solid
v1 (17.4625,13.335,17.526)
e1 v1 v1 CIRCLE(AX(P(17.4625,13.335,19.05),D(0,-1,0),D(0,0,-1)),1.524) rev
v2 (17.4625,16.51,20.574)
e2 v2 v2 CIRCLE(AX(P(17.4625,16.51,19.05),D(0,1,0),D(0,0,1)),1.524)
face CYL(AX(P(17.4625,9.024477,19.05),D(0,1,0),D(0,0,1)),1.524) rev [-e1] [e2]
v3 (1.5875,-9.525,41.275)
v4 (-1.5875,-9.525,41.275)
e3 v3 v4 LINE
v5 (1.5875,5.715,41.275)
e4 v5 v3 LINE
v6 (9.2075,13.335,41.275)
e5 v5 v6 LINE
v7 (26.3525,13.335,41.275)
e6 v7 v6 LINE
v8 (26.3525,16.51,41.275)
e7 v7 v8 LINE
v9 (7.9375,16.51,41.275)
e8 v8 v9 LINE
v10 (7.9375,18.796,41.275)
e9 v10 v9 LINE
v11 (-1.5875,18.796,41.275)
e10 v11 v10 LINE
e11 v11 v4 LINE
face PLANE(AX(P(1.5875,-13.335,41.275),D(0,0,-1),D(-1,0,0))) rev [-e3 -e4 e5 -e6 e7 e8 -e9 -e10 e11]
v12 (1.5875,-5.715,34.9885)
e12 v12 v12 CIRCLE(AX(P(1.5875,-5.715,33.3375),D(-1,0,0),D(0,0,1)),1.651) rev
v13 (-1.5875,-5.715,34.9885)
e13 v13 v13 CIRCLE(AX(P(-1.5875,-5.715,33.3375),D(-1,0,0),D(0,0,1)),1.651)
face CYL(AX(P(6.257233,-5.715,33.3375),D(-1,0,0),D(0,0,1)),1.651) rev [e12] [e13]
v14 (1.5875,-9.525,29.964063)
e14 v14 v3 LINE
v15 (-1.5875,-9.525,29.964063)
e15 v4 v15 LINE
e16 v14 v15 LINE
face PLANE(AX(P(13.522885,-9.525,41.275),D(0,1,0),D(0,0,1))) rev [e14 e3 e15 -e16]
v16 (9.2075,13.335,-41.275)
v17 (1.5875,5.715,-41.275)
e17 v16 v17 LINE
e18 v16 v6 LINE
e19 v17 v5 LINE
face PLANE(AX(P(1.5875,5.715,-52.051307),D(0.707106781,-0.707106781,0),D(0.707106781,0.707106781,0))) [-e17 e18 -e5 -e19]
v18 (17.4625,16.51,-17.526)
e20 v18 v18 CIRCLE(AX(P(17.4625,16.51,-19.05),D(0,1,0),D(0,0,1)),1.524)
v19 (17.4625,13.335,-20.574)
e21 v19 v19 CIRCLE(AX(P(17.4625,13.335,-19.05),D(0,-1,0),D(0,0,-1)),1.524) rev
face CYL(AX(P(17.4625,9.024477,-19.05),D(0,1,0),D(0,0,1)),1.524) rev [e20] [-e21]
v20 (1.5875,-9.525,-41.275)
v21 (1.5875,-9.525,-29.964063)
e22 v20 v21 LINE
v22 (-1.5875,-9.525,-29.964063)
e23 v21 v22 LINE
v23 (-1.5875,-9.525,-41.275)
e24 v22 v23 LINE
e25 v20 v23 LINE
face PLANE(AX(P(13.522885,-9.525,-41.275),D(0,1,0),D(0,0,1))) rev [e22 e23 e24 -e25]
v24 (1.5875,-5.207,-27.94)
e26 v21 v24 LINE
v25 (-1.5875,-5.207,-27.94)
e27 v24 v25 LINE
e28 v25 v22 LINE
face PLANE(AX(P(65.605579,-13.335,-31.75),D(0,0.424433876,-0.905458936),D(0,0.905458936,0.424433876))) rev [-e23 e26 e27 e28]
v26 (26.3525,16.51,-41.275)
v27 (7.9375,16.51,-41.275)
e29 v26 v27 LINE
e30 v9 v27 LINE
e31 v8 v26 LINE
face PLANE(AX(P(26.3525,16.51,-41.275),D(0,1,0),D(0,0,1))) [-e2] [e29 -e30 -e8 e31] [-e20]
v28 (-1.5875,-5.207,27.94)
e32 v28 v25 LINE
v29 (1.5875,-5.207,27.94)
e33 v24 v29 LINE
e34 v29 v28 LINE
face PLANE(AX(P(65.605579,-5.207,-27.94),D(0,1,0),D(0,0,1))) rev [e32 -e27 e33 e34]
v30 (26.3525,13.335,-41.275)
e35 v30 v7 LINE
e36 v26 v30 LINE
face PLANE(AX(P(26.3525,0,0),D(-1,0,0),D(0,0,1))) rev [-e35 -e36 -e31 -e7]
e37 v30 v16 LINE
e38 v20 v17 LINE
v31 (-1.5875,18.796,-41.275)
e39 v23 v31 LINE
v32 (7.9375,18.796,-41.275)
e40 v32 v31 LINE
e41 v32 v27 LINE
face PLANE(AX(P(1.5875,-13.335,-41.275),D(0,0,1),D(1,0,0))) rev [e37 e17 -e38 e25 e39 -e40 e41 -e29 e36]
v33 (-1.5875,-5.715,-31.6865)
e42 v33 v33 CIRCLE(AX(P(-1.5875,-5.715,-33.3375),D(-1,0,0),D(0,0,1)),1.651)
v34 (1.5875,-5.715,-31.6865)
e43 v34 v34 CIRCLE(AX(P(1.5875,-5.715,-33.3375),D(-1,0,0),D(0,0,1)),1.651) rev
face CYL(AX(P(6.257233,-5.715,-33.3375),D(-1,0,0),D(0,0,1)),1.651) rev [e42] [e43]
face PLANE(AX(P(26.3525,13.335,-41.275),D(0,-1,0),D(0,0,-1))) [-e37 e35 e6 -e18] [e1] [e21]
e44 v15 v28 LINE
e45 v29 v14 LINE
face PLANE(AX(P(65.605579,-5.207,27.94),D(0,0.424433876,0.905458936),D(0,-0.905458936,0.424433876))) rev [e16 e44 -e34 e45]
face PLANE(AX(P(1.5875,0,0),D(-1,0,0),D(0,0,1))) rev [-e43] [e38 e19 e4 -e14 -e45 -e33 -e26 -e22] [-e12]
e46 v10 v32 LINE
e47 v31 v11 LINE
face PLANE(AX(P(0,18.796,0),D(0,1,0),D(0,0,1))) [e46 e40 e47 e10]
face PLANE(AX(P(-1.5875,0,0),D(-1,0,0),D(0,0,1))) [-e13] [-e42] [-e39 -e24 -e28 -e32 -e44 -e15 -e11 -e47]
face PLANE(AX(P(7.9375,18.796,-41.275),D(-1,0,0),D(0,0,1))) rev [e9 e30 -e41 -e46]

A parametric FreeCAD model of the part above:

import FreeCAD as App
import Part
import Sketcher
from FreeCAD import Vector
Q = App.Units.Quantity

doc = App.newDocument("Part")
body = doc.addObject("PartDesign::Body", "Body")

# Sketch on YZ plane
sketch1 = body.newObject("Sketcher::SketchObject", "Sketch")
sketch1.AttachmentSupport = (doc.getObject("YZ_Plane"), [""])
sketch1.MapMode = "FlatFace"
sketch1.addGeometry([
    Part.LineSegment(Vector(13.335, 41.275, 0), Vector(-13.335, 41.275, 0)),
    Part.LineSegment(Vector(-13.335, 41.275, 0), Vector(-13.335, -41.275, 0)),
    Part.LineSegment(Vector(-13.335, -41.275, 0), Vector(13.335, -41.275, 0)),
    Part.LineSegment(Vector(13.335, -41.275, 0), Vector(13.335, 41.275, 0)),
], False)
sketch1.addConstraint([
    Sketcher.Constraint("Coincident", 0, 2, 1, 1),
    Sketcher.Constraint("Coincident", 1, 2, 2, 1),
    Sketcher.Constraint("Coincident", 2, 2, 3, 1),
    Sketcher.Constraint("Coincident", 3, 2, 0, 1),
    Sketcher.Constraint("Horizontal", 0),
    Sketcher.Constraint("Vertical", 1),
    Sketcher.Constraint("Horizontal", 2),
    Sketcher.Constraint("Vertical", 3),
    Sketcher.Constraint("Symmetric", 0, 2, 2, 2, -1, 1),
    Sketcher.Constraint("DistanceX", 0, 2, 0, 1, Q("1.05 in")),
    Sketcher.Constraint("DistanceY", 1, 2, 1, 1, Q("3.25 in")),
])
pad1 = body.newObject("PartDesign::Pad", "Pad")
pad1.Profile = sketch1
pad1.Length = Q("0.125 in")
pad1.Midplane = True

# Sketch on YZ plane
sketch2 = body.newObject("Sketcher::SketchObject", "Sketch001")
sketch2.AttachmentSupport = (doc.getObject("YZ_Plane"), [""])
sketch2.MapMode = "FlatFace"
sketch2.AttachmentOffset = App.Placement(Vector(0, 0, -0.0625 * 25.4), App.Rotation())
sketch2.addGeometry([
    Part.Circle(Vector(-5.715, 33.3375, 0), Vector(0, 0, 1), 1.651),
    Part.Circle(Vector(-5.715, -33.3375, 0), Vector(0, 0, 1), 1.651),
    Part.Circle(Vector(-10.16, -26.4795, 0), Vector(0, 0, 1), 1.5875),
    Part.Circle(Vector(-10.16, 26.4795, 0), Vector(0, 0, 1), 1.5875),
], False)
sketch2.addConstraint([
    Sketcher.Constraint("Equal", 0, 1),
    Sketcher.Constraint("Equal", 2, 3),
    Sketcher.Constraint("Symmetric", 0, 3, 1, 3, -1),
    Sketcher.Constraint("Symmetric", 2, 3, 3, 3, -1),
    Sketcher.Constraint("Diameter", 0, Q("0.13 in")),
    Sketcher.Constraint("Diameter", 2, Q("0.125 in")),
    Sketcher.Constraint("DistanceX", 2, 3, -1, 1, Q("0.4 in")),
    Sketcher.Constraint("DistanceY", 1, 3, 2, 3, Q("0.27 in")),
    Sketcher.Constraint("DistanceX", 0, 3, -1, 1, Q("0.225 in")),
    Sketcher.Constraint("DistanceY", -1, 1, 0, 3, Q("1.3125 in")),
])
pocket1 = body.newObject("PartDesign::Pocket", "Pocket")
pocket1.Profile = sketch2
pocket1.Length = Q("0.125 in")
pocket1.Reversed = True

# Sketch on YZ plane
sketch3 = body.newObject("Sketcher::SketchObject", "Sketch002")
sketch3.AttachmentSupport = (doc.getObject("YZ_Plane"), [""])
sketch3.MapMode = "FlatFace"
sketch3.AttachmentOffset = App.Placement(Vector(0, 0, -0.0625 * 25.4), App.Rotation())
sketch3.addGeometry([
    Part.LineSegment(Vector(16.51, -41.275, 0), Vector(13.335, -41.275, 0)),
    Part.LineSegment(Vector(13.335, -41.275, 0), Vector(13.335, 41.275, 0)),
    Part.LineSegment(Vector(13.335, 41.275, 0), Vector(16.51, 41.275, 0)),
    Part.LineSegment(Vector(16.51, 41.275, 0), Vector(16.51, -41.275, 0)),
], False)
sketch3.addConstraint([
    Sketcher.Constraint("Coincident", 0, 2, 1, 1),
    Sketcher.Constraint("Coincident", 1, 2, 2, 1),
    Sketcher.Constraint("Coincident", 2, 2, 3, 1),
    Sketcher.Constraint("Coincident", 3, 2, 0, 1),
    Sketcher.Constraint("Horizontal", 0),
    Sketcher.Constraint("Vertical", 1),
    Sketcher.Constraint("Horizontal", 2),
    Sketcher.Constraint("Vertical", 3),
    Sketcher.Constraint("DistanceY", 1, 1, 1, 2, Q("3.25 in")),
    Sketcher.Constraint("DistanceX", 0, 2, 0, 1, Q("0.125 in")),
    Sketcher.Constraint("DistanceX", -1, 1, 2, 2, Q("0.65 in")),
    Sketcher.Constraint("DistanceY", 0, 2, -1, 1, Q("1.625 in")),
])
pad2 = body.newObject("PartDesign::Pad", "Pad001")
pad2.Profile = sketch3
pad2.Length = Q("1.1 in")

# Sketch on XZ plane
sketch4 = body.newObject("Sketcher::SketchObject", "Sketch003")
sketch4.AttachmentSupport = (doc.getObject("XZ_Plane"), [""])
sketch4.MapMode = "FlatFace"
sketch4.AttachmentOffset = App.Placement(Vector(0, 0, -0.65 * 25.4), App.Rotation())
sketch4.addGeometry([
    Part.Circle(Vector(17.4625, -19.05, 0), Vector(0, 0, 1), 1.524),
    Part.Circle(Vector(17.4625, 19.05, 0), Vector(0, 0, 1), 1.524),
], False)
sketch4.addConstraint([
    Sketcher.Constraint("Equal", 0, 1),
    Sketcher.Constraint("Symmetric", 0, 3, 1, 3, -1),
    Sketcher.Constraint("Diameter", 0, Q("0.12 in")),
    Sketcher.Constraint("DistanceY", 0, 3, 1, 3, Q("1.5 in")),
    Sketcher.Constraint("DistanceX", -1, 1, 0, 3, Q("0.6875 in")),
])
pocket2 = body.newObject("PartDesign::Pocket", "Pocket001")
pocket2.Profile = sketch4
pocket2.Length = Q("0.125 in")
pocket2.Reversed = True

# Sketch on YZ plane
sketch5 = body.newObject("Sketcher::SketchObject", "Sketch004")
sketch5.AttachmentSupport = (doc.getObject("YZ_Plane"), [""])
sketch5.MapMode = "FlatFace"
sketch5.AttachmentOffset = App.Placement(Vector(0, 0, -0.0625 * 25.4), App.Rotation())
sketch5.addGeometry([
    Part.LineSegment(Vector(-13.335, -31.75, 0), Vector(-13.335, 31.75, 0)),
    Part.LineSegment(Vector(-13.335, 31.75, 0), Vector(-5.207, 27.94, 0)),
    Part.LineSegment(Vector(-5.207, 27.94, 0), Vector(-5.207, -27.94, 0)),
    Part.LineSegment(Vector(-5.207, -27.94, 0), Vector(-13.335, -31.75, 0)),
], False)
sketch5.addConstraint([
    Sketcher.Constraint("Coincident", 0, 2, 1, 1),
    Sketcher.Constraint("Coincident", 1, 2, 2, 1),
    Sketcher.Constraint("Coincident", 2, 2, 3, 1),
    Sketcher.Constraint("Coincident", 3, 2, 0, 1),
    Sketcher.Constraint("Vertical", 0),
    Sketcher.Constraint("Vertical", 2),
    Sketcher.Constraint("Equal", 1, 3),
    Sketcher.Constraint("DistanceY", 0, 1, 0, 2, Q("2.5 in")),
    Sketcher.Constraint("DistanceY", 2, 2, 2, 1, Q("2.2 in")),
    Sketcher.Constraint("DistanceY", -1, 1, 1, 2, Q("1.1 in")),
    Sketcher.Constraint("DistanceX", 0, 2, 1, 2, Q("0.32 in")),
    Sketcher.Constraint("DistanceX", 0, 2, -1, 1, Q("0.525 in")),
])
pocket3 = body.newObject("PartDesign::Pocket", "Pocket002")
pocket3.Profile = sketch5
pocket3.Length = Q("0.125 in")
pocket3.Reversed = True

# Sketch on XY plane
sketch6 = body.newObject("Sketcher::SketchObject", "Sketch005")
sketch6.AttachmentSupport = (doc.getObject("XY_Plane"), [""])
sketch6.MapMode = "FlatFace"
sketch6.AttachmentOffset = App.Placement(Vector(0, 0, 1.625 * 25.4), App.Rotation())
sketch6.addGeometry([
    Part.LineSegment(Vector(9.2075, 13.335, 0), Vector(1.5875, 13.335, 0)),
    Part.LineSegment(Vector(1.5875, 13.335, 0), Vector(1.5875, 5.715, 0)),
    Part.LineSegment(Vector(1.5875, 5.715, 0), Vector(9.2075, 13.335, 0)),
], False)
sketch6.addConstraint([
    Sketcher.Constraint("Coincident", 0, 2, 1, 1),
    Sketcher.Constraint("Coincident", 1, 2, 2, 1),
    Sketcher.Constraint("Coincident", 2, 2, 0, 1),
    Sketcher.Constraint("Horizontal", 0),
    Sketcher.Constraint("Vertical", 1),
    Sketcher.Constraint("Equal", 0, 1),
    Sketcher.Constraint("DistanceX", 0, 2, 0, 1, Q("0.3 in")),
    Sketcher.Constraint("DistanceX", -1, 1, 0, 2, Q("0.0625 in")),
    Sketcher.Constraint("DistanceY", -1, 1, 0, 2, Q("0.525 in")),
])
pad3 = body.newObject("PartDesign::Pad", "Pad002")
pad3.Profile = sketch6
pad3.Length = Q("3.25 in")
pad3.Reversed = True

# Sketch on YZ plane
sketch7 = body.newObject("Sketcher::SketchObject", "Sketch006")
sketch7.AttachmentSupport = (doc.getObject("YZ_Plane"), [""])
sketch7.MapMode = "FlatFace"
sketch7.AttachmentOffset = App.Placement(Vector(0, 0, -0.0625 * 25.4), App.Rotation())
sketch7.addGeometry([
    Part.LineSegment(Vector(-9.525, -41.275, 0), Vector(-13.335, -41.275, 0)),  # 0
    Part.LineSegment(Vector(-13.335, -41.275, 0), Vector(-13.335, -31.75, 0)),  # 1
    Part.LineSegment(Vector(-13.335, -31.75, 0), Vector(-9.525, -29.964063, 0)),  # 2
    Part.LineSegment(Vector(-9.525, -29.964063, 0), Vector(-9.525, -41.275, 0)),  # 3
    Part.LineSegment(Vector(-13.335, 41.275, 0), Vector(-9.525, 41.275, 0)),  # 4
    Part.LineSegment(Vector(-9.525, 41.275, 0), Vector(-9.525, 29.964063, 0)),  # 5
    Part.LineSegment(Vector(-9.525, 29.964063, 0), Vector(-13.335, 31.75, 0)),  # 6
    Part.LineSegment(Vector(-13.335, 31.75, 0), Vector(-13.335, 41.275, 0)),  # 7
], False)
sketch7.addConstraint([
    Sketcher.Constraint("Coincident", 0, 2, 1, 1),
    Sketcher.Constraint("Coincident", 1, 2, 2, 1),
    Sketcher.Constraint("Coincident", 2, 2, 3, 1),
    Sketcher.Constraint("Coincident", 3, 2, 0, 1),
    Sketcher.Constraint("Coincident", 4, 2, 5, 1),
    Sketcher.Constraint("Coincident", 5, 2, 6, 1),
    Sketcher.Constraint("Coincident", 6, 2, 7, 1),
    Sketcher.Constraint("Coincident", 7, 2, 4, 1),
    Sketcher.Constraint("Horizontal", 0),
    Sketcher.Constraint("Vertical", 1),
    Sketcher.Constraint("Vertical", 3),
    Sketcher.Constraint("Horizontal", 4),
    Sketcher.Constraint("Vertical", 5),
    Sketcher.Constraint("Vertical", 7),
    Sketcher.Constraint("Symmetric", 3, 2, 4, 2, -1),
    Sketcher.Constraint("Symmetric", 1, 2, 6, 2, -1),
    Sketcher.Constraint("Equal", 3, 5),
    Sketcher.Constraint("DistanceX", 0, 2, 0, 1, Q("0.15 in")),
    Sketcher.Constraint("DistanceY", 1, 2, 6, 2, Q("2.5 in")),
    Sketcher.Constraint("DistanceY", 1, 1, 1, 2, Q("0.375 in")),
    Sketcher.Constraint("DistanceX", 0, 2, -1, 1, Q("0.525 in")),
    Sketcher.Constraint("DistanceY", 2, 2, 5, 2, Q("2.359375 in")),
])
pocket4 = body.newObject("PartDesign::Pocket", "Pocket003")
pocket4.Profile = sketch7
pocket4.Length = Q("0.125 in")
pocket4.Reversed = True

# Sketch on XZ plane
sketch8 = body.newObject("Sketcher::SketchObject", "Sketch007")
sketch8.AttachmentSupport = (doc.getObject("XZ_Plane"), [""])
sketch8.MapMode = "FlatFace"
sketch8.AttachmentOffset = App.Placement(Vector(0, 0, -0.65 * 25.4), App.Rotation())
sketch8.addGeometry([
    Part.LineSegment(Vector(-1.5875, -41.275, 0), Vector(-1.5875, 41.275, 0)),
    Part.LineSegment(Vector(-1.5875, 41.275, 0), Vector(7.9375, 41.275, 0)),
    Part.LineSegment(Vector(7.9375, 41.275, 0), Vector(7.9375, -41.275, 0)),
    Part.LineSegment(Vector(7.9375, -41.275, 0), Vector(-1.5875, -41.275, 0)),
], False)
sketch8.addConstraint([
    Sketcher.Constraint("Coincident", 0, 2, 1, 1),
    Sketcher.Constraint("Coincident", 1, 2, 2, 1),
    Sketcher.Constraint("Coincident", 2, 2, 3, 1),
    Sketcher.Constraint("Coincident", 3, 2, 0, 1),
    Sketcher.Constraint("Vertical", 0),
    Sketcher.Constraint("Horizontal", 1),
    Sketcher.Constraint("Vertical", 2),
    Sketcher.Constraint("Horizontal", 3),
    Sketcher.Constraint("DistanceY", 0, 1, 0, 2, Q("3.25 in")),
    Sketcher.Constraint("DistanceX", 1, 1, 1, 2, Q("0.375 in")),
    Sketcher.Constraint("DistanceX", 0, 2, -1, 1, Q("0.0625 in")),
    Sketcher.Constraint("DistanceY", -1, 1, 0, 2, Q("1.625 in")),
])
pad4 = body.newObject("PartDesign::Pad", "Pad003")
pad4.Profile = sketch8
pad4.Length = Q("0.09 in")
pad4.Reversed = True

doc.recompute()
